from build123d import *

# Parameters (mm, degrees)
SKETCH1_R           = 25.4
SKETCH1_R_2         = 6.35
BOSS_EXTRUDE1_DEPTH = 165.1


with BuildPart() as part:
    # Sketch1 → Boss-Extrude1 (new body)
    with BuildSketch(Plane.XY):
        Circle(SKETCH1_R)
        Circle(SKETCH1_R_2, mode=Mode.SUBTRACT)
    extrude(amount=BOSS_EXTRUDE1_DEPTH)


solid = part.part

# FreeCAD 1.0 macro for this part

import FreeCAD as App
import Part
import Sketcher
from FreeCAD import Vector
Q = App.Units.Quantity

doc = App.newDocument("Part")
params = doc.addObject("Spreadsheet::Sheet", "Params")
for row, (alias, value) in enumerate([
    ("sketch1_diameter", "2 in"),
    ("sketch1_diameter2", "0.5 in"),
    ("pad1_length", "6.5 in"),
], start=1):
    params.set(f"A{row}", alias)
    params.set(f"B{row}", "=" + value)
    params.setAlias(f"B{row}", alias)

body = doc.addObject("PartDesign::Body", "Body")

# Sketch on XY plane
sketch1 = body.newObject("Sketcher::SketchObject", "Sketch")
sketch1.AttachmentSupport = (doc.getObject("XY_Plane"), [""])
sketch1.MapMode = "FlatFace"
sketch1.addGeometry([
    Part.Circle(Vector(0, 0, 0), Vector(0, 0, 1), 25.4),
    Part.Circle(Vector(0, 0, 0), Vector(0, 0, 1), 6.35),
], False)
sketch1.addConstraint([
    Sketcher.Constraint("Coincident", 0, 3, -1, 1),
    Sketcher.Constraint("Coincident", 1, 3, -1, 1),
    Sketcher.Constraint("Diameter", 0, Q("2 in")),
    Sketcher.Constraint("Diameter", 1, Q("0.5 in")),
])
sketch1.setExpression("Constraints[2]", "Params.sketch1_diameter")
sketch1.setExpression("Constraints[3]", "Params.sketch1_diameter2")
pad1 = body.newObject("PartDesign::Pad", "Pad")
pad1.Profile = sketch1
pad1.setExpression("Length", "Params.pad1_length")

doc.recompute()
